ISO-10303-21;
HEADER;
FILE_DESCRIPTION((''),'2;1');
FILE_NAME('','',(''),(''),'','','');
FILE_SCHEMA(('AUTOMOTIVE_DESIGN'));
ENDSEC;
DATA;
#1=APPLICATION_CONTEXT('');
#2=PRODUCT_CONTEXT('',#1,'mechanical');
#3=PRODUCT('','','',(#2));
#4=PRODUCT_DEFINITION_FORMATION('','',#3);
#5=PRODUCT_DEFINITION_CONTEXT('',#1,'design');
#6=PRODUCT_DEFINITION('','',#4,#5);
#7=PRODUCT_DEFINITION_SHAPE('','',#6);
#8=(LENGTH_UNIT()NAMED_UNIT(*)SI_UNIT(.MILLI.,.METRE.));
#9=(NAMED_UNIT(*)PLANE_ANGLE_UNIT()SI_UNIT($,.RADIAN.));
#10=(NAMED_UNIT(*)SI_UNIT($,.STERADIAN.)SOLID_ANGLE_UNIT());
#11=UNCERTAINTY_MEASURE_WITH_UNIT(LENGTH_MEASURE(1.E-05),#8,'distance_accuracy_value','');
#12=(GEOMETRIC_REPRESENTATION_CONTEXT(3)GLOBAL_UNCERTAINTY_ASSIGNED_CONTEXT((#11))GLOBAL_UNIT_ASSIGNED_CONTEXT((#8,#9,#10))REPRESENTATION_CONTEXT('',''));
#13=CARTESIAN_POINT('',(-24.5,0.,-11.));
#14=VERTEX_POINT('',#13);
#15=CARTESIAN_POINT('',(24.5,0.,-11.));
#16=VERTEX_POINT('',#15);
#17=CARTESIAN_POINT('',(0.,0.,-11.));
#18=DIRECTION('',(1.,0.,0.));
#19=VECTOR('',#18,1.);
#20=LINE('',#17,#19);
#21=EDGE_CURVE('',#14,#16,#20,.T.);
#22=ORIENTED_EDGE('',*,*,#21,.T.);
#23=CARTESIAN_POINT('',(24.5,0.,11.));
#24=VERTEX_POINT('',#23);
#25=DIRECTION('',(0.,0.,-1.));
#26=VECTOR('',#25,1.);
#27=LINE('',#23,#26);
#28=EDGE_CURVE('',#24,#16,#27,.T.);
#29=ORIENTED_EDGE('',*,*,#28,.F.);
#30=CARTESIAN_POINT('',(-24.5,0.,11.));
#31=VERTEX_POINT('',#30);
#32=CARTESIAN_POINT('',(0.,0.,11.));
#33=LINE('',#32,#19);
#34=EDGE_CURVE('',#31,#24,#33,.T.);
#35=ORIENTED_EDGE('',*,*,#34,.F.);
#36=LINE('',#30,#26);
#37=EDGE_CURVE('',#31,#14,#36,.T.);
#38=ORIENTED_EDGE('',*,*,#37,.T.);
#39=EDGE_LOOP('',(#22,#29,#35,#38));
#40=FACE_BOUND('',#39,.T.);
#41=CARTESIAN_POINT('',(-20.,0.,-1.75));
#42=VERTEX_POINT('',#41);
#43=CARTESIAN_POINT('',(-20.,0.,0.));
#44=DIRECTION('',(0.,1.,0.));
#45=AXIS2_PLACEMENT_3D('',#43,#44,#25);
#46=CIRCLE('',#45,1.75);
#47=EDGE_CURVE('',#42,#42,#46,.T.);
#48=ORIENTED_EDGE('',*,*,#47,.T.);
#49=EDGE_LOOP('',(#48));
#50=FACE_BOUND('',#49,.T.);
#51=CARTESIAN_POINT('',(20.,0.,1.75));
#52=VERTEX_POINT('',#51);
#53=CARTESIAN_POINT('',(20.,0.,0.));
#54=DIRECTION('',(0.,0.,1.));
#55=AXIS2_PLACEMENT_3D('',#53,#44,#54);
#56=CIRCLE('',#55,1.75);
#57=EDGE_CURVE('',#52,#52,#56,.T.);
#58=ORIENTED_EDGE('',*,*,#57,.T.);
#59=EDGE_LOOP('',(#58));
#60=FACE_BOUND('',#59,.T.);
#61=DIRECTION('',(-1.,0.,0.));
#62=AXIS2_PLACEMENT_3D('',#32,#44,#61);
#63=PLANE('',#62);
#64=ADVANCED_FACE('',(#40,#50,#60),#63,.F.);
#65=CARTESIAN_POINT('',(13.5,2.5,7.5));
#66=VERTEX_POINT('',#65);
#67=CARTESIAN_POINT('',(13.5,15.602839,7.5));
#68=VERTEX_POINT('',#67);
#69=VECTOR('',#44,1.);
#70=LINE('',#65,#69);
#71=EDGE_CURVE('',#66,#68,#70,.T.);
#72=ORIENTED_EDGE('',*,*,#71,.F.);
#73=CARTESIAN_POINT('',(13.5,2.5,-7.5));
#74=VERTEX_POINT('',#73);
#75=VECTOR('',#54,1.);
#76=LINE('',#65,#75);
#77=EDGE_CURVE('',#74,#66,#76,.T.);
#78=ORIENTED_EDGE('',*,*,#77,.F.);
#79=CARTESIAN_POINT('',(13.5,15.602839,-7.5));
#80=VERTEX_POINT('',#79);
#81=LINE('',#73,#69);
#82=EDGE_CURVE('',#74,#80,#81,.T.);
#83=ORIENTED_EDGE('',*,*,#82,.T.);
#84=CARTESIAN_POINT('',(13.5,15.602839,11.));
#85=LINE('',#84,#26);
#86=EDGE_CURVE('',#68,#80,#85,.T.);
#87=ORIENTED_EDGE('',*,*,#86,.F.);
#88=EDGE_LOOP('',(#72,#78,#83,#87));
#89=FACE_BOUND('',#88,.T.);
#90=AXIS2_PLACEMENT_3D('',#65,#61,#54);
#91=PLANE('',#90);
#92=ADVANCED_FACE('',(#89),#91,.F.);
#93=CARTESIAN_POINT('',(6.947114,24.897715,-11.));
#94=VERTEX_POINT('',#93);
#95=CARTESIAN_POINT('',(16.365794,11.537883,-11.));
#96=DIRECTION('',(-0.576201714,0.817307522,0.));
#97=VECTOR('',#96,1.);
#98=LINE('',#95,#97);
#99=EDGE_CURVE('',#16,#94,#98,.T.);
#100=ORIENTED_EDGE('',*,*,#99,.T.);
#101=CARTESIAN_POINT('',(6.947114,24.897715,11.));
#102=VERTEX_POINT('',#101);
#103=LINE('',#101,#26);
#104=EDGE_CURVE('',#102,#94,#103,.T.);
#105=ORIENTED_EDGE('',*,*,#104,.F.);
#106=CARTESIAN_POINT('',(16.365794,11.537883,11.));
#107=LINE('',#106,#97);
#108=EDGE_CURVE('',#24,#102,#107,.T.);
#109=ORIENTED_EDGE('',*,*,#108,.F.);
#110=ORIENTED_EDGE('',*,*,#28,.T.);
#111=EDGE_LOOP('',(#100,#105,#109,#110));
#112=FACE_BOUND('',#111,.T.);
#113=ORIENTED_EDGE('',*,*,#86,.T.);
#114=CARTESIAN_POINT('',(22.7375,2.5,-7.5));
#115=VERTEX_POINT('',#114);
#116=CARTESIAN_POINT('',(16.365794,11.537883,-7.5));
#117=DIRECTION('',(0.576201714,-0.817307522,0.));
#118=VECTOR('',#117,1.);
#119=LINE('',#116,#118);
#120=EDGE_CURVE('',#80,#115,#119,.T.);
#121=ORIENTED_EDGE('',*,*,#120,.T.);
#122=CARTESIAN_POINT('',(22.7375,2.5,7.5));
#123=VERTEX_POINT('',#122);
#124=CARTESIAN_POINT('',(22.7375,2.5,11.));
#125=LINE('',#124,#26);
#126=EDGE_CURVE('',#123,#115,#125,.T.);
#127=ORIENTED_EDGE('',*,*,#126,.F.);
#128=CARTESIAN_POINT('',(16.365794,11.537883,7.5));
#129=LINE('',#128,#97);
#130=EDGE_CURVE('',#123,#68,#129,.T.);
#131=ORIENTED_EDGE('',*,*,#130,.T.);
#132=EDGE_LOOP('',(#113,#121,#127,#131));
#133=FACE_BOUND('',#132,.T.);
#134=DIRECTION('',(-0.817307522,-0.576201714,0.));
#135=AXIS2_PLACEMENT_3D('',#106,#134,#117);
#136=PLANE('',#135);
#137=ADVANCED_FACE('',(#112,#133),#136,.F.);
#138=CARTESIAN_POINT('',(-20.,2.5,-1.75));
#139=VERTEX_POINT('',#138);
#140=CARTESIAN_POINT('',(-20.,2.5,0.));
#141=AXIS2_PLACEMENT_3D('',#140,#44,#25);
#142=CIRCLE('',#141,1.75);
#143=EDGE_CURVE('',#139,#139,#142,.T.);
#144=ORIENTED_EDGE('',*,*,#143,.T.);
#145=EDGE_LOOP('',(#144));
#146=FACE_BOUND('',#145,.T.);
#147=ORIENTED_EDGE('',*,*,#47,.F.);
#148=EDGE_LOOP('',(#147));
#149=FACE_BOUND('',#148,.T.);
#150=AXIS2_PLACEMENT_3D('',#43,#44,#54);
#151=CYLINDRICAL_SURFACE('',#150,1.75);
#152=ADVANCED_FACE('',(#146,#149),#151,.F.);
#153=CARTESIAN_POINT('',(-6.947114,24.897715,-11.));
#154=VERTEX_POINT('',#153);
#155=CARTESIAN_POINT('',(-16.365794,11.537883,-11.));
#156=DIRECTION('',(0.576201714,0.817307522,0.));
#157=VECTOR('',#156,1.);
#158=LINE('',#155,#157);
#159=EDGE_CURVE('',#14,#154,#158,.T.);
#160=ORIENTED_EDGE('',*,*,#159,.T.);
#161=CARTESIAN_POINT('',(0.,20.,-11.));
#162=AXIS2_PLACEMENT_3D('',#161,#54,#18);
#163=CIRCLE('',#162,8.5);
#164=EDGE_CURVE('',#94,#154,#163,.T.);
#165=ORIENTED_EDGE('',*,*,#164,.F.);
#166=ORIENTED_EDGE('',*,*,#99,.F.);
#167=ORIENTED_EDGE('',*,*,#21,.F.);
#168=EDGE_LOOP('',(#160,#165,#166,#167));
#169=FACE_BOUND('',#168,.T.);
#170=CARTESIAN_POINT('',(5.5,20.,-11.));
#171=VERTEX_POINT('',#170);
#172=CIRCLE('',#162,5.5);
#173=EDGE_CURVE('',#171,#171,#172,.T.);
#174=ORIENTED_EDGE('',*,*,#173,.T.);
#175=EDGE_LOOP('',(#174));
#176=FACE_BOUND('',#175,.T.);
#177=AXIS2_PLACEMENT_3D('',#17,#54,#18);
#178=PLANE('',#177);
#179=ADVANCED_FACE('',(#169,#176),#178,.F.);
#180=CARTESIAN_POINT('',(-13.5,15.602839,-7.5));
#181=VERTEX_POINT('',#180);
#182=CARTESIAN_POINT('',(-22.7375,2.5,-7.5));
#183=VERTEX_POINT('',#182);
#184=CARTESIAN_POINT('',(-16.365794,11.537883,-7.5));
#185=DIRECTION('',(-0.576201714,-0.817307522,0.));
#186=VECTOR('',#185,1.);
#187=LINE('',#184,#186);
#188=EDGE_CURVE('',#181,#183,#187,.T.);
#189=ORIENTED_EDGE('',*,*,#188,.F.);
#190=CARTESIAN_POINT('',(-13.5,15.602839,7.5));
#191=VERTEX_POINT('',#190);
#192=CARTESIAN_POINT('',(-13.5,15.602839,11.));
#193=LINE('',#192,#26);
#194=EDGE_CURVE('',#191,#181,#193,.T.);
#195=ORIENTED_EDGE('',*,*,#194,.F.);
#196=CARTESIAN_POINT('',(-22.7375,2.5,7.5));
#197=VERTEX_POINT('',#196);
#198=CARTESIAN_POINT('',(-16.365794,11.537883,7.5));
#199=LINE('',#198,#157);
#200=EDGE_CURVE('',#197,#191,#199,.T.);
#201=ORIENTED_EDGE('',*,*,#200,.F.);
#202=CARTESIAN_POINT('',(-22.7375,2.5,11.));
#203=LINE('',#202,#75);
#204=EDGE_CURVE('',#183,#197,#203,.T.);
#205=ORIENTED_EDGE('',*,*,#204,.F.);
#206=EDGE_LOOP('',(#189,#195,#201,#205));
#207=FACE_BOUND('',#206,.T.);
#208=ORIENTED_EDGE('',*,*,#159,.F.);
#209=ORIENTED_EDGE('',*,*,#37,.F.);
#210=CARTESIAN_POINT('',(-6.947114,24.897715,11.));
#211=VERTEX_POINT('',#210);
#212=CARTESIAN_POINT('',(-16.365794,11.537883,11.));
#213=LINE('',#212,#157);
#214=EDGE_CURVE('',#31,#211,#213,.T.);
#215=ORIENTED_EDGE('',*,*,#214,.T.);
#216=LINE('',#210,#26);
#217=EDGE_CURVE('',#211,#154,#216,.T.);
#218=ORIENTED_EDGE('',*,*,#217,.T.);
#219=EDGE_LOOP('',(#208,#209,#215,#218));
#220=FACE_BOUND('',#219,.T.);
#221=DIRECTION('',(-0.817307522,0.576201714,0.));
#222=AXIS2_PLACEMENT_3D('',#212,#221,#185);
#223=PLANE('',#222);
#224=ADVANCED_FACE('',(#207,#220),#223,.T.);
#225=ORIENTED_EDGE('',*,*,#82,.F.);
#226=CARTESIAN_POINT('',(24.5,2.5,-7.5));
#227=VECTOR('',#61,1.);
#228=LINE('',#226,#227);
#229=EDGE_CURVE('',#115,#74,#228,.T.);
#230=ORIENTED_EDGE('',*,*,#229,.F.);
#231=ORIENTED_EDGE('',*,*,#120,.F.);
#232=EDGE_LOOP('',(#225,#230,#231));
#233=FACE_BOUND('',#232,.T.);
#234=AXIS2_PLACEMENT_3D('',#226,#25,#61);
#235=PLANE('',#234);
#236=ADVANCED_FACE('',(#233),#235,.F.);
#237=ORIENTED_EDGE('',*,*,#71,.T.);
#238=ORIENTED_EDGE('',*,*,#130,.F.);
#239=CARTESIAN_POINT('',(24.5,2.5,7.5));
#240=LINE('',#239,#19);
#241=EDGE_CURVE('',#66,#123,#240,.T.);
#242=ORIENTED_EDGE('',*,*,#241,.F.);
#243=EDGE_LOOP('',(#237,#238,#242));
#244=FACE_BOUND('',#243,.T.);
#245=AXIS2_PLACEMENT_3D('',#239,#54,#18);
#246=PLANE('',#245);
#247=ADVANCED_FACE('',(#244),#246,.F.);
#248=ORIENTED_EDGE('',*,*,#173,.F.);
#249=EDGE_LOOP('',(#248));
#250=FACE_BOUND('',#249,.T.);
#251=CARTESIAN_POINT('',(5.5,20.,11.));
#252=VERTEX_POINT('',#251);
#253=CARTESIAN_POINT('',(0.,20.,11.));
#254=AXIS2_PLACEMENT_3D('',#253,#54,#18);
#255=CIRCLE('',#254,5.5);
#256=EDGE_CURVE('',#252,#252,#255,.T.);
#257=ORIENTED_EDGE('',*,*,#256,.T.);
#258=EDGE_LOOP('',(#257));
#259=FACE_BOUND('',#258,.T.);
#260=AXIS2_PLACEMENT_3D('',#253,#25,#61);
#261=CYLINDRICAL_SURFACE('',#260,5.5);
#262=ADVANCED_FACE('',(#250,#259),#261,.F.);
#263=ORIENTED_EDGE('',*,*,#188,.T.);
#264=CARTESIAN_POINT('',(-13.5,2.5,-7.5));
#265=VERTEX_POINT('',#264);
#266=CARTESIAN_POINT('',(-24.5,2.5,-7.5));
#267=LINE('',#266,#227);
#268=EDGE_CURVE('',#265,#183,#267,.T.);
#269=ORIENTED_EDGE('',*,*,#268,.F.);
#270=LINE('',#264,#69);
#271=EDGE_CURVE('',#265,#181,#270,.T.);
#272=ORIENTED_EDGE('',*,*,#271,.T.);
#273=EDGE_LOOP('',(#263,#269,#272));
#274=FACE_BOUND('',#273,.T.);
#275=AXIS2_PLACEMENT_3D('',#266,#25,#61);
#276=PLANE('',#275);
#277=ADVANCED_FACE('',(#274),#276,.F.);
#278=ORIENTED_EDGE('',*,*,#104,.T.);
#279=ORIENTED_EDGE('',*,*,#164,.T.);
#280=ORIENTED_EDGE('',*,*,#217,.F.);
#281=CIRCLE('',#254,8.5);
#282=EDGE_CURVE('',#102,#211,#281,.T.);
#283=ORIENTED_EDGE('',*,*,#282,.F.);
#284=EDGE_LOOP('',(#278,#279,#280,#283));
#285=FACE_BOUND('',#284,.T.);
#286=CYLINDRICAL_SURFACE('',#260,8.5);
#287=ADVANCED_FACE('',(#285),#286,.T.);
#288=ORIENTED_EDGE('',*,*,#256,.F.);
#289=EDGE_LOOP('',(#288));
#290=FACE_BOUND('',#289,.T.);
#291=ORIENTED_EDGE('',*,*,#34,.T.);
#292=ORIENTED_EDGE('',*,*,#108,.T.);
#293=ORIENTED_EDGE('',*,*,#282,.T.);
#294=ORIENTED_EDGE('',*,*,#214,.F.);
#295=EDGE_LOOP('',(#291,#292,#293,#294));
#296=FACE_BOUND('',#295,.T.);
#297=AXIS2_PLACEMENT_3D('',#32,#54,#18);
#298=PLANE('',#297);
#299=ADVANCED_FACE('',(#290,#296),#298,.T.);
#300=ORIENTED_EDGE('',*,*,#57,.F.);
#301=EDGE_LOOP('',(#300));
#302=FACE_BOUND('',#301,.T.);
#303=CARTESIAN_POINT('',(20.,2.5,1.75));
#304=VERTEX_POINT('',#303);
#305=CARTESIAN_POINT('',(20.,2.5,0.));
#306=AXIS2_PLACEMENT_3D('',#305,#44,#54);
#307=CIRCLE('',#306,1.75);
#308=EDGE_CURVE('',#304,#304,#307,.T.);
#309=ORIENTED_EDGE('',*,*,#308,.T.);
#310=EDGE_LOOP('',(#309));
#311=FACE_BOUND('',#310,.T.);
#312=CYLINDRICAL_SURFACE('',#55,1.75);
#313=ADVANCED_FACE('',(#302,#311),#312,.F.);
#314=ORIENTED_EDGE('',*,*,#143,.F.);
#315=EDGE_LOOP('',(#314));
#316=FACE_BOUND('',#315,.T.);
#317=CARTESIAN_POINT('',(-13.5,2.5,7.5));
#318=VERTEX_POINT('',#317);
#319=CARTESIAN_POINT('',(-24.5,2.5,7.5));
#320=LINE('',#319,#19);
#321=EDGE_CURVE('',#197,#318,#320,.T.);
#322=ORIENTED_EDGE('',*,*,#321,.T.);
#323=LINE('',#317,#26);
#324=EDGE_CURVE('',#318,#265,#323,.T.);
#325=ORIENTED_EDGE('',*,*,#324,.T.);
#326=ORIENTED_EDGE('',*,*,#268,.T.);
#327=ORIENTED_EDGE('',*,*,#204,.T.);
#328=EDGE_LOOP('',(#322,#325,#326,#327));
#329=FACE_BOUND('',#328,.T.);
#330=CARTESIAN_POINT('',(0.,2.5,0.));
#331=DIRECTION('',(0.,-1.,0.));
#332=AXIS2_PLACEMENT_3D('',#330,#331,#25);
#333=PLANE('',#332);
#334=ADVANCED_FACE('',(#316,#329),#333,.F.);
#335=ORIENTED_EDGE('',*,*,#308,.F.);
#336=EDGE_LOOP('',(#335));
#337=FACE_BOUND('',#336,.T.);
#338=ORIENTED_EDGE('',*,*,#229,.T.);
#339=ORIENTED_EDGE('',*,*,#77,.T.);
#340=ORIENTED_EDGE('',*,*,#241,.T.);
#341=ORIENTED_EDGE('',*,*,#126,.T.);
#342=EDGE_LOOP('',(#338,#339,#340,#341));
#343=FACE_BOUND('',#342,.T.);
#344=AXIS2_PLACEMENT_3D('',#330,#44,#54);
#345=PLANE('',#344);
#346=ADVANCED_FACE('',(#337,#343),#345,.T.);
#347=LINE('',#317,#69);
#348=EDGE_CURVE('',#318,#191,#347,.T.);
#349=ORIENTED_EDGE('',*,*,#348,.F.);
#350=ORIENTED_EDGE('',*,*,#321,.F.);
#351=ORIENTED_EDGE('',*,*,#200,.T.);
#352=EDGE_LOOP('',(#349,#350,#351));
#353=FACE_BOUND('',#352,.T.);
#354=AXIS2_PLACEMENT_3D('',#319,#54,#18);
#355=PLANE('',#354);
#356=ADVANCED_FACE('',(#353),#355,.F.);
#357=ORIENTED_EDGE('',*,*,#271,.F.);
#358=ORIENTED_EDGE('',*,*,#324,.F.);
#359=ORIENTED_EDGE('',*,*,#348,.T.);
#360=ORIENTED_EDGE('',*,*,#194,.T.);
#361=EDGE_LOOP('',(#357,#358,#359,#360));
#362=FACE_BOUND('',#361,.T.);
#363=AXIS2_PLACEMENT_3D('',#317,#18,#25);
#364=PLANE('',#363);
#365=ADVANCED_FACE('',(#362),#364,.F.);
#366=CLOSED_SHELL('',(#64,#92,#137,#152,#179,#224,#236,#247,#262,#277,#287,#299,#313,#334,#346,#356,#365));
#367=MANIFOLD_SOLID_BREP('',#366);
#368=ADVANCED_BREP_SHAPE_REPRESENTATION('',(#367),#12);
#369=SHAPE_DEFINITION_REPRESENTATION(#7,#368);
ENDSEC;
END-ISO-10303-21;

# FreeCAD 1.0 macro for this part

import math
import FreeCAD as App
import Part
import Sketcher
from FreeCAD import Vector


def add_polygon(sketch, points):
    """Adds a closed chain of lines whose ends are joined by coincident constraints."""
    first, n = sketch.GeometryCount, len(points)
    for a, b in zip(points, points[1:] + points[:1]):
        sketch.addGeometry(Part.LineSegment(App.Vector(*a, 0), App.Vector(*b, 0)), False)
    for i in range(n):
        sketch.addConstraint(Sketcher.Constraint("Coincident", first + i, 2, first + (i + 1) % n, 1))

doc = App.newDocument("Part")
body = doc.addObject("PartDesign::Body", "Body")

# Sketch on XY plane
sketch1 = body.newObject("Sketcher::SketchObject", "Sketch")
sketch1.AttachmentSupport = (doc.getObject("XY_Plane"), [""])
sketch1.MapMode = "FlatFace"
sketch1.addGeometry([
    Part.LineSegment(Vector(-7, 25, 0), Vector(-24, 0, 0)),  # 0
    Part.LineSegment(Vector(-24, 0, 0), Vector(24, 0, 0)),  # 1
    Part.LineSegment(Vector(24, 0, 0), Vector(7, 25, 0)),  # 2
    Part.ArcOfCircle(Part.Circle(Vector(0, 20, 0), Vector(0, 0, 1), 9), math.radians(35), math.radians(145)),  # 3
    Part.Circle(Vector(0, 20, 0), Vector(0, 0, 1), 6),  # 4
], False)
sketch1.addConstraint([
    Sketcher.Constraint("Coincident", 0, 2, 1, 1),
    Sketcher.Constraint("Coincident", 1, 2, 2, 1),
    Sketcher.Constraint("Tangent", 2, 2, 3, 1),
    Sketcher.Constraint("Tangent", 3, 2, 0, 1),
    Sketcher.Constraint("Horizontal", 1),
    Sketcher.Constraint("Coincident", 4, 3, 3, 3),
    Sketcher.Constraint("Symmetric", 0, 2, 1, 2, -1, 1),
    Sketcher.Constraint("PointOnObject", 3, 3, -2),
    Sketcher.Constraint("Diameter", 4, 11.0),
    Sketcher.Constraint("Radius", 3, 8.5),
    Sketcher.Constraint("DistanceX", 1, 1, 1, 2, 49.0),
    Sketcher.Constraint("DistanceY", -1, 1, 3, 3, 20.0),
])
pad1 = body.newObject("PartDesign::Pad", "Pad")
pad1.Profile = sketch1
pad1.Length = 22
pad1.Midplane = True

# Sketch on XZ plane
sketch2 = body.newObject("Sketcher::SketchObject", "Sketch001")
sketch2.AttachmentSupport = (doc.getObject("XZ_Plane"), [""])
sketch2.MapMode = "FlatFace"
sketch2.AttachmentOffset = App.Placement(Vector(0, 0, -28.5), App.Rotation())
add_polygon(sketch2, [(14, -8), (14, 8), (24, 8), (24, -8)])  # lines 0-3
add_polygon(sketch2, [(-24, -8), (-24, 8), (-14, 8), (-14, -8)])  # lines 4-7
sketch2.addConstraint([
    Sketcher.Constraint("Vertical", 0),
    Sketcher.Constraint("Horizontal", 1),
    Sketcher.Constraint("Vertical", 2),
    Sketcher.Constraint("Horizontal", 3),
    Sketcher.Constraint("Vertical", 4),
    Sketcher.Constraint("Horizontal", 5),
    Sketcher.Constraint("Vertical", 6),
    Sketcher.Constraint("Horizontal", 7),
    Sketcher.Constraint("Symmetric", 2, 2, 4, 2, -1, 1),
    Sketcher.Constraint("Symmetric", 0, 2, 6, 2, -1, 1),
    Sketcher.Constraint("Horizontal", 1, 2, 4, 2),
    Sketcher.Constraint("DistanceX", 1, 1, 1, 2, 11.0),
    Sketcher.Constraint("DistanceY", 0, 1, 0, 2, 15.0),
    Sketcher.Constraint("DistanceX", 4, 2, 0, 2, 38.0),
])
pocket1 = body.newObject("PartDesign::Pocket", "Pocket")
pocket1.Profile = sketch2
pocket1.Length = 26
pocket1.Reversed = True

# Sketch on XZ plane
sketch3 = body.newObject("Sketcher::SketchObject", "Sketch002")
sketch3.AttachmentSupport = (doc.getObject("XZ_Plane"), [""])
sketch3.MapMode = "FlatFace"
sketch3.AttachmentOffset = App.Placement(Vector(0, 0, -2.5), App.Rotation())
sketch3.addGeometry([
    Part.Circle(Vector(20, 0, 0), Vector(0, 0, 1), 1.8),
    Part.Circle(Vector(-20, 0, 0), Vector(0, 0, 1), 1.8),
], False)
sketch3.addConstraint([
    Sketcher.Constraint("Equal", 0, 1),
    Sketcher.Constraint("Symmetric", 0, 3, 1, 3, -1, 1),
    Sketcher.Constraint("PointOnObject", 0, 3, -1),
    Sketcher.Constraint("Diameter", 0, 3.5),
    Sketcher.Constraint("DistanceX", -1, 1, 0, 3, 20.0),
])
pocket2 = body.newObject("PartDesign::Pocket", "Pocket001")
pocket2.Profile = sketch3
pocket2.Type = "ThroughAll"
pocket2.Reversed = True

doc.recompute()
